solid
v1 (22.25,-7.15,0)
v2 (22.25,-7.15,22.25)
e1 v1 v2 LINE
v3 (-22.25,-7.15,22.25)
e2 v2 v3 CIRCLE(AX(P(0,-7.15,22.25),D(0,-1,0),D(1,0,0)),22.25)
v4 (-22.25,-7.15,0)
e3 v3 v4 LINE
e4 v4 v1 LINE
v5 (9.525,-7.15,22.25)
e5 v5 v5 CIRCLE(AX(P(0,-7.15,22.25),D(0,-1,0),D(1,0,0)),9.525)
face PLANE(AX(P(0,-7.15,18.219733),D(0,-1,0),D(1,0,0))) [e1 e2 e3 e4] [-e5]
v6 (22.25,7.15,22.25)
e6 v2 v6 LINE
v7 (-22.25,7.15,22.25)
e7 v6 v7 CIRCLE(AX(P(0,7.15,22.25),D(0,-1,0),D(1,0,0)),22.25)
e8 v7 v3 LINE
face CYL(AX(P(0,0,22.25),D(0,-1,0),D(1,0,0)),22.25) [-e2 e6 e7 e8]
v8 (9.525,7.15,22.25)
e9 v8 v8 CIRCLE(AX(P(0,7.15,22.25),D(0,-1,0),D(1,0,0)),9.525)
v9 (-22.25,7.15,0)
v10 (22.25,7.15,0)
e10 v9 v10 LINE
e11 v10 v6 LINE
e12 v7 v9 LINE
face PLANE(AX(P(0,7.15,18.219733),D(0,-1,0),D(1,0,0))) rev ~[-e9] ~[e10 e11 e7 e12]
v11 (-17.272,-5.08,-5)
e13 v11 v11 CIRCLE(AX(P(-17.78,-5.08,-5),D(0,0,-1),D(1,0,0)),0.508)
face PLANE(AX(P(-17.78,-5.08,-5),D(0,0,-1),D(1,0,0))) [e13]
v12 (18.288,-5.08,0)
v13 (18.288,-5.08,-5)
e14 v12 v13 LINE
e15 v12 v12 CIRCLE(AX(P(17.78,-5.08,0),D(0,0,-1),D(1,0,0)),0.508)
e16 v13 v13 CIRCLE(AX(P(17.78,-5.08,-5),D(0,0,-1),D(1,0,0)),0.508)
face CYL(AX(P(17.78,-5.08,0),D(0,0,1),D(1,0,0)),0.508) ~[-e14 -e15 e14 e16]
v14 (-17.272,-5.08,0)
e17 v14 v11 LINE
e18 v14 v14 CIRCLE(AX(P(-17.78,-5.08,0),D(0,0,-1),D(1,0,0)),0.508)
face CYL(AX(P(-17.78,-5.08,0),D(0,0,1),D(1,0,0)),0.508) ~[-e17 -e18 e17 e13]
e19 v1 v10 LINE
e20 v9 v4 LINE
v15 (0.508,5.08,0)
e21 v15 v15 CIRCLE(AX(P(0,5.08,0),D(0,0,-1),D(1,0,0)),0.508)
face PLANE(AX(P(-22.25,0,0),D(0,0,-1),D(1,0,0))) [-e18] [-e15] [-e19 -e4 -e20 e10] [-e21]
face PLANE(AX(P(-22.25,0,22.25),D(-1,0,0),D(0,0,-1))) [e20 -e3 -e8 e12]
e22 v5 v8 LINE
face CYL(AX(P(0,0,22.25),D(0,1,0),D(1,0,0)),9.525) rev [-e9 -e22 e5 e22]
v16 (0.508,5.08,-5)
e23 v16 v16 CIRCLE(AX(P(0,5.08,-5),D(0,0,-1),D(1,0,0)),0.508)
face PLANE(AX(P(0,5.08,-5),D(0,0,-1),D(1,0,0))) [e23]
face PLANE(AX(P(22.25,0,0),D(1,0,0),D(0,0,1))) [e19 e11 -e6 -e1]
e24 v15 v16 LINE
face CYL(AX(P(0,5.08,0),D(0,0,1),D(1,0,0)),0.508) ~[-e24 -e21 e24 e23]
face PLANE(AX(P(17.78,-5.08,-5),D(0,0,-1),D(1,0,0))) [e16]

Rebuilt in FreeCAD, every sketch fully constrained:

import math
import FreeCAD as App
import Part
import Sketcher

doc = App.newDocument("Part")
params = doc.addObject("Spreadsheet::Sheet", "Params")
for row, (alias, value) in enumerate([
    ("sketch1_diameter", "19.05 mm"),
    ("sketch1_radius", "22.25 mm"),
    ("sketch1_height", "22.25 mm"),
    ("pad1_length", "14.3 mm"),
    ("pad2_length", "5 mm"),
], start=1):
    params.set(f"A{row}", alias)
    params.set(f"B{row}", "=" + value)
    params.setAlias(f"B{row}", alias)

body = doc.addObject("PartDesign::Body", "Body")

# Sketch on XZ plane
sketch1 = doc.addObject("Sketcher::SketchObject", "Sketch")
body.addObject(sketch1)
sketch1.AttachmentSupport = (doc.XZ_Plane, [""])
sketch1.MapMode = "FlatFace"
sketch1.addGeometry(Part.ArcOfCircle(Part.Circle(App.Vector(0, 22, 0), App.Vector(0, 0, 1), 22), math.radians(0), math.radians(180)), False)
sketch1.addGeometry(Part.LineSegment(App.Vector(-22, 22, 0), App.Vector(-22, 0, 0)), False)
sketch1.addGeometry(Part.LineSegment(App.Vector(-22, 0, 0), App.Vector(22, 0, 0)), False)
sketch1.addGeometry(Part.LineSegment(App.Vector(22, 0, 0), App.Vector(22, 22, 0)), False)
sketch1.addGeometry(Part.Circle(App.Vector(0, 22, 0), App.Vector(0, 0, 1), 10), False)
sketch1.addConstraint(Sketcher.Constraint("Tangent", 0, 2, 1, 1))
sketch1.addConstraint(Sketcher.Constraint("Coincident", 1, 2, 2, 1))
sketch1.addConstraint(Sketcher.Constraint("Coincident", 2, 2, 3, 1))
sketch1.addConstraint(Sketcher.Constraint("Tangent", 3, 2, 0, 1))
sketch1.addConstraint(Sketcher.Constraint("Vertical", 1))
sketch1.addConstraint(Sketcher.Constraint("Horizontal", 2))
sketch1.addConstraint(Sketcher.Constraint("Vertical", 3))
sketch1.addConstraint(Sketcher.Constraint("Coincident", 4, 3, 0, 3))
sketch1.addConstraint(Sketcher.Constraint("Symmetric", 1, 2, 2, 2, -1, 1))
sketch1.addConstraint(Sketcher.Constraint("Diameter", 4, 19.05))
sketch1.addConstraint(Sketcher.Constraint("Radius", 0, 22.25))
sketch1.addConstraint(Sketcher.Constraint("DistanceY", 1, 2, 1, 1, 22.25))
sketch1.setExpression("Constraints[9]", "Params.sketch1_diameter")
sketch1.setExpression("Constraints[10]", "Params.sketch1_radius")
sketch1.setExpression("Constraints[11]", "Params.sketch1_height")
pad1 = doc.addObject("PartDesign::Pad", "Pad")
body.addObject(pad1)
pad1.Profile = sketch1
pad1.setExpression("Length", "Params.pad1_length")
pad1.Midplane = True

# Sketch on XY plane
sketch2 = doc.addObject("Sketcher::SketchObject", "Sketch001")
body.addObject(sketch2)
sketch2.AttachmentSupport = (doc.XY_Plane, [""])
sketch2.MapMode = "FlatFace"
sketch2.addGeometry(Part.Circle(App.Vector(-17.8, -5.1, 0), App.Vector(0, 0, 1), 0.5), False)
sketch2.addGeometry(Part.Circle(App.Vector(17.8, -5.1, 0), App.Vector(0, 0, 1), 0.5), False)
sketch2.addGeometry(Part.Circle(App.Vector(0, 5.1, 0), App.Vector(0, 0, 1), 0.5), False)
sketch2.addConstraint(Sketcher.Constraint("Equal", 0, 1))
sketch2.addConstraint(Sketcher.Constraint("Equal", 1, 2))
sketch2.addConstraint(Sketcher.Constraint("Symmetric", 0, 3, 1, 3, -2))
sketch2.addConstraint(Sketcher.Constraint("PointOnObject", 2, 3, -2))
sketch2.addConstraint(Sketcher.Constraint("Diameter", 0, 1.016))
sketch2.addConstraint(Sketcher.Constraint("DistanceX", 0, 3, -1, 1, 17.78))
sketch2.addConstraint(Sketcher.Constraint("DistanceY", 0, 3, -1, 1, 5.08))
sketch2.addConstraint(Sketcher.Constraint("DistanceY", -1, 1, 2, 3, 5.08))
pad2 = doc.addObject("PartDesign::Pad", "Pad001")
body.addObject(pad2)
pad2.Profile = sketch2
pad2.setExpression("Length", "Params.pad2_length")
pad2.Reversed = True

doc.recompute()
